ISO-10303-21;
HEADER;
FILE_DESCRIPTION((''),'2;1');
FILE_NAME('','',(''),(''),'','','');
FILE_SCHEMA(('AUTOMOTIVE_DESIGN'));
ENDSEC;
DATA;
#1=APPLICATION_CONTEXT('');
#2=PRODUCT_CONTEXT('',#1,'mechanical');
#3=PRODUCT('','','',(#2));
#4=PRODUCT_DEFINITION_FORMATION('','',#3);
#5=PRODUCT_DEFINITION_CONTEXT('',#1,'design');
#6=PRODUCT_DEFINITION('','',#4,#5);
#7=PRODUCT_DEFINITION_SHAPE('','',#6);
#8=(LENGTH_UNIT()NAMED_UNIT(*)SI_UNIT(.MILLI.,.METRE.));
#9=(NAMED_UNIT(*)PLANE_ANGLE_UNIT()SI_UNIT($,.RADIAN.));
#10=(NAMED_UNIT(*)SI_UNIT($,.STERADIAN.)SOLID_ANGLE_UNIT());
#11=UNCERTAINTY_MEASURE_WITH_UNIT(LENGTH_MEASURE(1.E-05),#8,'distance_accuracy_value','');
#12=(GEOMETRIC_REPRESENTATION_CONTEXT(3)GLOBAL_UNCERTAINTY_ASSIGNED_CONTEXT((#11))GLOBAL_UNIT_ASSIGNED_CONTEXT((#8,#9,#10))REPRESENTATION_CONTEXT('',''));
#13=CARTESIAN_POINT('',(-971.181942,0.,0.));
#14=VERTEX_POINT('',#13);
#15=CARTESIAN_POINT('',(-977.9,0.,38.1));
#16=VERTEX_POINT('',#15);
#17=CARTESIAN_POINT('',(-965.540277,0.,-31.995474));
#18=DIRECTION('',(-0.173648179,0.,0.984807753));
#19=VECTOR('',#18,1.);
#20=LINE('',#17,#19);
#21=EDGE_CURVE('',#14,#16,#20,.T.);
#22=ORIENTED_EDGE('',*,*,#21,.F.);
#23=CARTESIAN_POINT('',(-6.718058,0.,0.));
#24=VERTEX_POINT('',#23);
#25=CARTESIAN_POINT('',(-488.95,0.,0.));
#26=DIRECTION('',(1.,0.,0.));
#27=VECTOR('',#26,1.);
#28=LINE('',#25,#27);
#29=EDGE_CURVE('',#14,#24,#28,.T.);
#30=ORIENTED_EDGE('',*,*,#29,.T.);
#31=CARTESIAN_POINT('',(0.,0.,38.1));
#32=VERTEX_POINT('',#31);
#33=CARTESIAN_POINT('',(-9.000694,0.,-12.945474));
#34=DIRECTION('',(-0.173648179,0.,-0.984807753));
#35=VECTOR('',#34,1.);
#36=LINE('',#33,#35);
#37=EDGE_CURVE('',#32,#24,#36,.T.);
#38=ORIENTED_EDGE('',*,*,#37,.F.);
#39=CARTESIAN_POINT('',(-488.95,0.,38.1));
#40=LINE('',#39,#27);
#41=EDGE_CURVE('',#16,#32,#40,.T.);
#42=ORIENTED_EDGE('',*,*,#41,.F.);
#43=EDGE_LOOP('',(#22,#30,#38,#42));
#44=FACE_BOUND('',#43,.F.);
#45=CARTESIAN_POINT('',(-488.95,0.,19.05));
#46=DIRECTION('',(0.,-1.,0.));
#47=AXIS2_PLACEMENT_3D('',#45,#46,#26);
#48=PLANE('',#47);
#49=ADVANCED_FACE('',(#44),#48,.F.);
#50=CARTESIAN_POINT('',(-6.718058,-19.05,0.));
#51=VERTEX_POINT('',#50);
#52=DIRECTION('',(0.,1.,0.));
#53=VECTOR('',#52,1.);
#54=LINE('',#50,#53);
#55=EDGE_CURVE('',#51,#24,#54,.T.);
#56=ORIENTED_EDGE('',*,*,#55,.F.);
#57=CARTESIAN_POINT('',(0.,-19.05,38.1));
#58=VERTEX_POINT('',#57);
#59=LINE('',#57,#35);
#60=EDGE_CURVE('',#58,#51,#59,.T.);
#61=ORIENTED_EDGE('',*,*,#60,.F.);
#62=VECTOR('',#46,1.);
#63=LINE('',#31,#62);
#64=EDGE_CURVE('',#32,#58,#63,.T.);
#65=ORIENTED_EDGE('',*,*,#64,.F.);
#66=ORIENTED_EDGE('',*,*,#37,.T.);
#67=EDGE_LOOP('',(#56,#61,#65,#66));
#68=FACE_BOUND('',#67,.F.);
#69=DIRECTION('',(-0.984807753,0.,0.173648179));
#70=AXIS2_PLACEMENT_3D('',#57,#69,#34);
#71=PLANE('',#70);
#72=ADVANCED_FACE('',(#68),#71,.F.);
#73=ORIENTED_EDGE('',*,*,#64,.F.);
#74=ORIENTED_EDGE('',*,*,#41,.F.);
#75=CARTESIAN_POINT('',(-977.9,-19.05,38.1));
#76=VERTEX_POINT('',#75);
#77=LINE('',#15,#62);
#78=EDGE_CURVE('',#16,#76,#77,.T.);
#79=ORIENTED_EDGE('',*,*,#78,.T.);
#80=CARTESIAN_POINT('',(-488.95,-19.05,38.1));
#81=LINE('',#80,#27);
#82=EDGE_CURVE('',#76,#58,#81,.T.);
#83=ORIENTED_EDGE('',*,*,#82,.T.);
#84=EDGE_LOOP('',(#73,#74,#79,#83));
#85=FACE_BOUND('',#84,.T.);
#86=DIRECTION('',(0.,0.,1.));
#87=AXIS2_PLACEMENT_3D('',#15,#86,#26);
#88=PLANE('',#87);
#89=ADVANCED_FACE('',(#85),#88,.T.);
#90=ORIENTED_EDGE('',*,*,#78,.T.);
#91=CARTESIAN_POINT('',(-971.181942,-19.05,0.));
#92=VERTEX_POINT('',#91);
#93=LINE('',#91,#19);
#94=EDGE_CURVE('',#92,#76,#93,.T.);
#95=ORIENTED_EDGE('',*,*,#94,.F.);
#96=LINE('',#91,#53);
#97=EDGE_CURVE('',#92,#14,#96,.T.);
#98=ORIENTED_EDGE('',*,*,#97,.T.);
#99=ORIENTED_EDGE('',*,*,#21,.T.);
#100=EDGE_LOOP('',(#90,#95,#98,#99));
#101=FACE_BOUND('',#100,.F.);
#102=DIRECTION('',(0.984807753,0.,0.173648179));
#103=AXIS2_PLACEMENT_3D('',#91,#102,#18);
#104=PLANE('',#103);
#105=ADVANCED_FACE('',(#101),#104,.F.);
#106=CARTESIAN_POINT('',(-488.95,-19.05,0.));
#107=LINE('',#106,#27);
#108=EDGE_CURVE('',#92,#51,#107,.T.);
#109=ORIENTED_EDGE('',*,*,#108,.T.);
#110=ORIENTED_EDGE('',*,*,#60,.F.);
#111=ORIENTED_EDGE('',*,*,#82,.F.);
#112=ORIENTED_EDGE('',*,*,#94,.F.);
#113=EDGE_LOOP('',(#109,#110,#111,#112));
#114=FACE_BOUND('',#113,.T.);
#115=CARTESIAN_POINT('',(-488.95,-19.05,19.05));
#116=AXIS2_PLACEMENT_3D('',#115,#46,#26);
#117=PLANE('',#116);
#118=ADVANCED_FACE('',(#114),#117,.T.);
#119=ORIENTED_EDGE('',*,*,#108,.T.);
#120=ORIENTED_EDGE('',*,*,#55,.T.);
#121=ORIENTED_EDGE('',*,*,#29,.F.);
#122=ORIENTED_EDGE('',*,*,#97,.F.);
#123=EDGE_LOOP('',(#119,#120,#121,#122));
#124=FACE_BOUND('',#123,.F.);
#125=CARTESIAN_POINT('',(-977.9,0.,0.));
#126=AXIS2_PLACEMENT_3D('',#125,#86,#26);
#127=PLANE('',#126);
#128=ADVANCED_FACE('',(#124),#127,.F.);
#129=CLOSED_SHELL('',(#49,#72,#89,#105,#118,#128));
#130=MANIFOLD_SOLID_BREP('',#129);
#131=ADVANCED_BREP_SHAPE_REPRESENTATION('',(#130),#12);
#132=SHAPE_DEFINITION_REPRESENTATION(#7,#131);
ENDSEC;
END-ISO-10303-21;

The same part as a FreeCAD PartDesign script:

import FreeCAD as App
import Part
import Sketcher
Q = App.Units.Quantity


def add_polygon(sketch, points):
    """Adds a closed chain of lines whose ends are joined by coincident constraints."""
    first, n = sketch.GeometryCount, len(points)
    for a, b in zip(points, points[1:] + points[:1]):
        sketch.addGeometry(Part.LineSegment(App.Vector(*a, 0), App.Vector(*b, 0)), False)
    for i in range(n):
        sketch.addConstraint(Sketcher.Constraint("Coincident", first + i, 2, first + (i + 1) % n, 1))

doc = App.newDocument("Part")
body = doc.addObject("PartDesign::Body", "Body")

# Sketch on XZ plane
sketch1 = body.newObject("Sketcher::SketchObject", "Sketch")
sketch1.AttachmentSupport = (doc.getObject("XZ_Plane"), [""])
sketch1.MapMode = "FlatFace"
add_polygon(sketch1, [(-978, 38), (-978, 0), (0, 0), (0, 38)])  # lines 0-3
sketch1.addConstraint([
    Sketcher.Constraint("Vertical", 0),
    Sketcher.Constraint("Horizontal", 1),
    Sketcher.Constraint("Vertical", 2),
    Sketcher.Constraint("Horizontal", 3),
    Sketcher.Constraint("Coincident", 1, 2, -1, 1),
    Sketcher.Constraint("DistanceX", 1, 1, 1, 2, Q("38.5 in")),
    Sketcher.Constraint("DistanceY", 0, 2, 0, 1, Q("1.5 in")),
])
pad1 = body.newObject("PartDesign::Pad", "Pad")
pad1.Profile = sketch1
pad1.Length = Q("0.75 in")

# Sketch on XZ plane
sketch2 = body.newObject("Sketcher::SketchObject", "Sketch001")
sketch2.AttachmentSupport = (doc.getObject("XZ_Plane"), [""])
sketch2.MapMode = "FlatFace"
sketch2.AttachmentOffset = App.Placement(App.Vector(0, 0, 0.75 * 25.4), App.Rotation())
add_polygon(sketch2, [(-971, 0), (-978, 38), (-978, 0)])  # lines 0-2
sketch2.addConstraint([
    Sketcher.Constraint("Vertical", 1),
    Sketcher.Constraint("Horizontal", 2),
    Sketcher.Constraint("PointOnObject", 1, 2, -1),
    Sketcher.Constraint("DistanceY", 1, 2, 1, 1, Q("1.5 in")),
    Sketcher.Constraint("Angle", 0, Q("100 deg")),
    Sketcher.Constraint("DistanceX", 0, 2, -1, 1, Q("38.5 in")),
])
pocket1 = body.newObject("PartDesign::Pocket", "Pocket")
pocket1.Profile = sketch2
pocket1.Length = Q("1 in")

# Sketch on XZ plane
sketch3 = body.newObject("Sketcher::SketchObject", "Sketch002")
sketch3.AttachmentSupport = (doc.getObject("XZ_Plane"), [""])
sketch3.MapMode = "FlatFace"
sketch3.AttachmentOffset = App.Placement(App.Vector(0, 0, 0.75 * 25.4), App.Rotation())
add_polygon(sketch3, [(0, 0), (0, 38), (-7, 0)])  # lines 0-2
sketch3.addConstraint([
    Sketcher.Constraint("Vertical", 0),
    Sketcher.Constraint("Horizontal", 2),
    Sketcher.Constraint("Coincident", 2, 2, -1, 1),
    Sketcher.Constraint("DistanceY", 0, 1, 0, 2, Q("1.5 in")),
    Sketcher.Constraint("Angle", 1, Q("-100 deg")),
])
pocket2 = body.newObject("PartDesign::Pocket", "Pocket001")
pocket2.Profile = sketch3
pocket2.Length = Q("1 in")

doc.recompute()
